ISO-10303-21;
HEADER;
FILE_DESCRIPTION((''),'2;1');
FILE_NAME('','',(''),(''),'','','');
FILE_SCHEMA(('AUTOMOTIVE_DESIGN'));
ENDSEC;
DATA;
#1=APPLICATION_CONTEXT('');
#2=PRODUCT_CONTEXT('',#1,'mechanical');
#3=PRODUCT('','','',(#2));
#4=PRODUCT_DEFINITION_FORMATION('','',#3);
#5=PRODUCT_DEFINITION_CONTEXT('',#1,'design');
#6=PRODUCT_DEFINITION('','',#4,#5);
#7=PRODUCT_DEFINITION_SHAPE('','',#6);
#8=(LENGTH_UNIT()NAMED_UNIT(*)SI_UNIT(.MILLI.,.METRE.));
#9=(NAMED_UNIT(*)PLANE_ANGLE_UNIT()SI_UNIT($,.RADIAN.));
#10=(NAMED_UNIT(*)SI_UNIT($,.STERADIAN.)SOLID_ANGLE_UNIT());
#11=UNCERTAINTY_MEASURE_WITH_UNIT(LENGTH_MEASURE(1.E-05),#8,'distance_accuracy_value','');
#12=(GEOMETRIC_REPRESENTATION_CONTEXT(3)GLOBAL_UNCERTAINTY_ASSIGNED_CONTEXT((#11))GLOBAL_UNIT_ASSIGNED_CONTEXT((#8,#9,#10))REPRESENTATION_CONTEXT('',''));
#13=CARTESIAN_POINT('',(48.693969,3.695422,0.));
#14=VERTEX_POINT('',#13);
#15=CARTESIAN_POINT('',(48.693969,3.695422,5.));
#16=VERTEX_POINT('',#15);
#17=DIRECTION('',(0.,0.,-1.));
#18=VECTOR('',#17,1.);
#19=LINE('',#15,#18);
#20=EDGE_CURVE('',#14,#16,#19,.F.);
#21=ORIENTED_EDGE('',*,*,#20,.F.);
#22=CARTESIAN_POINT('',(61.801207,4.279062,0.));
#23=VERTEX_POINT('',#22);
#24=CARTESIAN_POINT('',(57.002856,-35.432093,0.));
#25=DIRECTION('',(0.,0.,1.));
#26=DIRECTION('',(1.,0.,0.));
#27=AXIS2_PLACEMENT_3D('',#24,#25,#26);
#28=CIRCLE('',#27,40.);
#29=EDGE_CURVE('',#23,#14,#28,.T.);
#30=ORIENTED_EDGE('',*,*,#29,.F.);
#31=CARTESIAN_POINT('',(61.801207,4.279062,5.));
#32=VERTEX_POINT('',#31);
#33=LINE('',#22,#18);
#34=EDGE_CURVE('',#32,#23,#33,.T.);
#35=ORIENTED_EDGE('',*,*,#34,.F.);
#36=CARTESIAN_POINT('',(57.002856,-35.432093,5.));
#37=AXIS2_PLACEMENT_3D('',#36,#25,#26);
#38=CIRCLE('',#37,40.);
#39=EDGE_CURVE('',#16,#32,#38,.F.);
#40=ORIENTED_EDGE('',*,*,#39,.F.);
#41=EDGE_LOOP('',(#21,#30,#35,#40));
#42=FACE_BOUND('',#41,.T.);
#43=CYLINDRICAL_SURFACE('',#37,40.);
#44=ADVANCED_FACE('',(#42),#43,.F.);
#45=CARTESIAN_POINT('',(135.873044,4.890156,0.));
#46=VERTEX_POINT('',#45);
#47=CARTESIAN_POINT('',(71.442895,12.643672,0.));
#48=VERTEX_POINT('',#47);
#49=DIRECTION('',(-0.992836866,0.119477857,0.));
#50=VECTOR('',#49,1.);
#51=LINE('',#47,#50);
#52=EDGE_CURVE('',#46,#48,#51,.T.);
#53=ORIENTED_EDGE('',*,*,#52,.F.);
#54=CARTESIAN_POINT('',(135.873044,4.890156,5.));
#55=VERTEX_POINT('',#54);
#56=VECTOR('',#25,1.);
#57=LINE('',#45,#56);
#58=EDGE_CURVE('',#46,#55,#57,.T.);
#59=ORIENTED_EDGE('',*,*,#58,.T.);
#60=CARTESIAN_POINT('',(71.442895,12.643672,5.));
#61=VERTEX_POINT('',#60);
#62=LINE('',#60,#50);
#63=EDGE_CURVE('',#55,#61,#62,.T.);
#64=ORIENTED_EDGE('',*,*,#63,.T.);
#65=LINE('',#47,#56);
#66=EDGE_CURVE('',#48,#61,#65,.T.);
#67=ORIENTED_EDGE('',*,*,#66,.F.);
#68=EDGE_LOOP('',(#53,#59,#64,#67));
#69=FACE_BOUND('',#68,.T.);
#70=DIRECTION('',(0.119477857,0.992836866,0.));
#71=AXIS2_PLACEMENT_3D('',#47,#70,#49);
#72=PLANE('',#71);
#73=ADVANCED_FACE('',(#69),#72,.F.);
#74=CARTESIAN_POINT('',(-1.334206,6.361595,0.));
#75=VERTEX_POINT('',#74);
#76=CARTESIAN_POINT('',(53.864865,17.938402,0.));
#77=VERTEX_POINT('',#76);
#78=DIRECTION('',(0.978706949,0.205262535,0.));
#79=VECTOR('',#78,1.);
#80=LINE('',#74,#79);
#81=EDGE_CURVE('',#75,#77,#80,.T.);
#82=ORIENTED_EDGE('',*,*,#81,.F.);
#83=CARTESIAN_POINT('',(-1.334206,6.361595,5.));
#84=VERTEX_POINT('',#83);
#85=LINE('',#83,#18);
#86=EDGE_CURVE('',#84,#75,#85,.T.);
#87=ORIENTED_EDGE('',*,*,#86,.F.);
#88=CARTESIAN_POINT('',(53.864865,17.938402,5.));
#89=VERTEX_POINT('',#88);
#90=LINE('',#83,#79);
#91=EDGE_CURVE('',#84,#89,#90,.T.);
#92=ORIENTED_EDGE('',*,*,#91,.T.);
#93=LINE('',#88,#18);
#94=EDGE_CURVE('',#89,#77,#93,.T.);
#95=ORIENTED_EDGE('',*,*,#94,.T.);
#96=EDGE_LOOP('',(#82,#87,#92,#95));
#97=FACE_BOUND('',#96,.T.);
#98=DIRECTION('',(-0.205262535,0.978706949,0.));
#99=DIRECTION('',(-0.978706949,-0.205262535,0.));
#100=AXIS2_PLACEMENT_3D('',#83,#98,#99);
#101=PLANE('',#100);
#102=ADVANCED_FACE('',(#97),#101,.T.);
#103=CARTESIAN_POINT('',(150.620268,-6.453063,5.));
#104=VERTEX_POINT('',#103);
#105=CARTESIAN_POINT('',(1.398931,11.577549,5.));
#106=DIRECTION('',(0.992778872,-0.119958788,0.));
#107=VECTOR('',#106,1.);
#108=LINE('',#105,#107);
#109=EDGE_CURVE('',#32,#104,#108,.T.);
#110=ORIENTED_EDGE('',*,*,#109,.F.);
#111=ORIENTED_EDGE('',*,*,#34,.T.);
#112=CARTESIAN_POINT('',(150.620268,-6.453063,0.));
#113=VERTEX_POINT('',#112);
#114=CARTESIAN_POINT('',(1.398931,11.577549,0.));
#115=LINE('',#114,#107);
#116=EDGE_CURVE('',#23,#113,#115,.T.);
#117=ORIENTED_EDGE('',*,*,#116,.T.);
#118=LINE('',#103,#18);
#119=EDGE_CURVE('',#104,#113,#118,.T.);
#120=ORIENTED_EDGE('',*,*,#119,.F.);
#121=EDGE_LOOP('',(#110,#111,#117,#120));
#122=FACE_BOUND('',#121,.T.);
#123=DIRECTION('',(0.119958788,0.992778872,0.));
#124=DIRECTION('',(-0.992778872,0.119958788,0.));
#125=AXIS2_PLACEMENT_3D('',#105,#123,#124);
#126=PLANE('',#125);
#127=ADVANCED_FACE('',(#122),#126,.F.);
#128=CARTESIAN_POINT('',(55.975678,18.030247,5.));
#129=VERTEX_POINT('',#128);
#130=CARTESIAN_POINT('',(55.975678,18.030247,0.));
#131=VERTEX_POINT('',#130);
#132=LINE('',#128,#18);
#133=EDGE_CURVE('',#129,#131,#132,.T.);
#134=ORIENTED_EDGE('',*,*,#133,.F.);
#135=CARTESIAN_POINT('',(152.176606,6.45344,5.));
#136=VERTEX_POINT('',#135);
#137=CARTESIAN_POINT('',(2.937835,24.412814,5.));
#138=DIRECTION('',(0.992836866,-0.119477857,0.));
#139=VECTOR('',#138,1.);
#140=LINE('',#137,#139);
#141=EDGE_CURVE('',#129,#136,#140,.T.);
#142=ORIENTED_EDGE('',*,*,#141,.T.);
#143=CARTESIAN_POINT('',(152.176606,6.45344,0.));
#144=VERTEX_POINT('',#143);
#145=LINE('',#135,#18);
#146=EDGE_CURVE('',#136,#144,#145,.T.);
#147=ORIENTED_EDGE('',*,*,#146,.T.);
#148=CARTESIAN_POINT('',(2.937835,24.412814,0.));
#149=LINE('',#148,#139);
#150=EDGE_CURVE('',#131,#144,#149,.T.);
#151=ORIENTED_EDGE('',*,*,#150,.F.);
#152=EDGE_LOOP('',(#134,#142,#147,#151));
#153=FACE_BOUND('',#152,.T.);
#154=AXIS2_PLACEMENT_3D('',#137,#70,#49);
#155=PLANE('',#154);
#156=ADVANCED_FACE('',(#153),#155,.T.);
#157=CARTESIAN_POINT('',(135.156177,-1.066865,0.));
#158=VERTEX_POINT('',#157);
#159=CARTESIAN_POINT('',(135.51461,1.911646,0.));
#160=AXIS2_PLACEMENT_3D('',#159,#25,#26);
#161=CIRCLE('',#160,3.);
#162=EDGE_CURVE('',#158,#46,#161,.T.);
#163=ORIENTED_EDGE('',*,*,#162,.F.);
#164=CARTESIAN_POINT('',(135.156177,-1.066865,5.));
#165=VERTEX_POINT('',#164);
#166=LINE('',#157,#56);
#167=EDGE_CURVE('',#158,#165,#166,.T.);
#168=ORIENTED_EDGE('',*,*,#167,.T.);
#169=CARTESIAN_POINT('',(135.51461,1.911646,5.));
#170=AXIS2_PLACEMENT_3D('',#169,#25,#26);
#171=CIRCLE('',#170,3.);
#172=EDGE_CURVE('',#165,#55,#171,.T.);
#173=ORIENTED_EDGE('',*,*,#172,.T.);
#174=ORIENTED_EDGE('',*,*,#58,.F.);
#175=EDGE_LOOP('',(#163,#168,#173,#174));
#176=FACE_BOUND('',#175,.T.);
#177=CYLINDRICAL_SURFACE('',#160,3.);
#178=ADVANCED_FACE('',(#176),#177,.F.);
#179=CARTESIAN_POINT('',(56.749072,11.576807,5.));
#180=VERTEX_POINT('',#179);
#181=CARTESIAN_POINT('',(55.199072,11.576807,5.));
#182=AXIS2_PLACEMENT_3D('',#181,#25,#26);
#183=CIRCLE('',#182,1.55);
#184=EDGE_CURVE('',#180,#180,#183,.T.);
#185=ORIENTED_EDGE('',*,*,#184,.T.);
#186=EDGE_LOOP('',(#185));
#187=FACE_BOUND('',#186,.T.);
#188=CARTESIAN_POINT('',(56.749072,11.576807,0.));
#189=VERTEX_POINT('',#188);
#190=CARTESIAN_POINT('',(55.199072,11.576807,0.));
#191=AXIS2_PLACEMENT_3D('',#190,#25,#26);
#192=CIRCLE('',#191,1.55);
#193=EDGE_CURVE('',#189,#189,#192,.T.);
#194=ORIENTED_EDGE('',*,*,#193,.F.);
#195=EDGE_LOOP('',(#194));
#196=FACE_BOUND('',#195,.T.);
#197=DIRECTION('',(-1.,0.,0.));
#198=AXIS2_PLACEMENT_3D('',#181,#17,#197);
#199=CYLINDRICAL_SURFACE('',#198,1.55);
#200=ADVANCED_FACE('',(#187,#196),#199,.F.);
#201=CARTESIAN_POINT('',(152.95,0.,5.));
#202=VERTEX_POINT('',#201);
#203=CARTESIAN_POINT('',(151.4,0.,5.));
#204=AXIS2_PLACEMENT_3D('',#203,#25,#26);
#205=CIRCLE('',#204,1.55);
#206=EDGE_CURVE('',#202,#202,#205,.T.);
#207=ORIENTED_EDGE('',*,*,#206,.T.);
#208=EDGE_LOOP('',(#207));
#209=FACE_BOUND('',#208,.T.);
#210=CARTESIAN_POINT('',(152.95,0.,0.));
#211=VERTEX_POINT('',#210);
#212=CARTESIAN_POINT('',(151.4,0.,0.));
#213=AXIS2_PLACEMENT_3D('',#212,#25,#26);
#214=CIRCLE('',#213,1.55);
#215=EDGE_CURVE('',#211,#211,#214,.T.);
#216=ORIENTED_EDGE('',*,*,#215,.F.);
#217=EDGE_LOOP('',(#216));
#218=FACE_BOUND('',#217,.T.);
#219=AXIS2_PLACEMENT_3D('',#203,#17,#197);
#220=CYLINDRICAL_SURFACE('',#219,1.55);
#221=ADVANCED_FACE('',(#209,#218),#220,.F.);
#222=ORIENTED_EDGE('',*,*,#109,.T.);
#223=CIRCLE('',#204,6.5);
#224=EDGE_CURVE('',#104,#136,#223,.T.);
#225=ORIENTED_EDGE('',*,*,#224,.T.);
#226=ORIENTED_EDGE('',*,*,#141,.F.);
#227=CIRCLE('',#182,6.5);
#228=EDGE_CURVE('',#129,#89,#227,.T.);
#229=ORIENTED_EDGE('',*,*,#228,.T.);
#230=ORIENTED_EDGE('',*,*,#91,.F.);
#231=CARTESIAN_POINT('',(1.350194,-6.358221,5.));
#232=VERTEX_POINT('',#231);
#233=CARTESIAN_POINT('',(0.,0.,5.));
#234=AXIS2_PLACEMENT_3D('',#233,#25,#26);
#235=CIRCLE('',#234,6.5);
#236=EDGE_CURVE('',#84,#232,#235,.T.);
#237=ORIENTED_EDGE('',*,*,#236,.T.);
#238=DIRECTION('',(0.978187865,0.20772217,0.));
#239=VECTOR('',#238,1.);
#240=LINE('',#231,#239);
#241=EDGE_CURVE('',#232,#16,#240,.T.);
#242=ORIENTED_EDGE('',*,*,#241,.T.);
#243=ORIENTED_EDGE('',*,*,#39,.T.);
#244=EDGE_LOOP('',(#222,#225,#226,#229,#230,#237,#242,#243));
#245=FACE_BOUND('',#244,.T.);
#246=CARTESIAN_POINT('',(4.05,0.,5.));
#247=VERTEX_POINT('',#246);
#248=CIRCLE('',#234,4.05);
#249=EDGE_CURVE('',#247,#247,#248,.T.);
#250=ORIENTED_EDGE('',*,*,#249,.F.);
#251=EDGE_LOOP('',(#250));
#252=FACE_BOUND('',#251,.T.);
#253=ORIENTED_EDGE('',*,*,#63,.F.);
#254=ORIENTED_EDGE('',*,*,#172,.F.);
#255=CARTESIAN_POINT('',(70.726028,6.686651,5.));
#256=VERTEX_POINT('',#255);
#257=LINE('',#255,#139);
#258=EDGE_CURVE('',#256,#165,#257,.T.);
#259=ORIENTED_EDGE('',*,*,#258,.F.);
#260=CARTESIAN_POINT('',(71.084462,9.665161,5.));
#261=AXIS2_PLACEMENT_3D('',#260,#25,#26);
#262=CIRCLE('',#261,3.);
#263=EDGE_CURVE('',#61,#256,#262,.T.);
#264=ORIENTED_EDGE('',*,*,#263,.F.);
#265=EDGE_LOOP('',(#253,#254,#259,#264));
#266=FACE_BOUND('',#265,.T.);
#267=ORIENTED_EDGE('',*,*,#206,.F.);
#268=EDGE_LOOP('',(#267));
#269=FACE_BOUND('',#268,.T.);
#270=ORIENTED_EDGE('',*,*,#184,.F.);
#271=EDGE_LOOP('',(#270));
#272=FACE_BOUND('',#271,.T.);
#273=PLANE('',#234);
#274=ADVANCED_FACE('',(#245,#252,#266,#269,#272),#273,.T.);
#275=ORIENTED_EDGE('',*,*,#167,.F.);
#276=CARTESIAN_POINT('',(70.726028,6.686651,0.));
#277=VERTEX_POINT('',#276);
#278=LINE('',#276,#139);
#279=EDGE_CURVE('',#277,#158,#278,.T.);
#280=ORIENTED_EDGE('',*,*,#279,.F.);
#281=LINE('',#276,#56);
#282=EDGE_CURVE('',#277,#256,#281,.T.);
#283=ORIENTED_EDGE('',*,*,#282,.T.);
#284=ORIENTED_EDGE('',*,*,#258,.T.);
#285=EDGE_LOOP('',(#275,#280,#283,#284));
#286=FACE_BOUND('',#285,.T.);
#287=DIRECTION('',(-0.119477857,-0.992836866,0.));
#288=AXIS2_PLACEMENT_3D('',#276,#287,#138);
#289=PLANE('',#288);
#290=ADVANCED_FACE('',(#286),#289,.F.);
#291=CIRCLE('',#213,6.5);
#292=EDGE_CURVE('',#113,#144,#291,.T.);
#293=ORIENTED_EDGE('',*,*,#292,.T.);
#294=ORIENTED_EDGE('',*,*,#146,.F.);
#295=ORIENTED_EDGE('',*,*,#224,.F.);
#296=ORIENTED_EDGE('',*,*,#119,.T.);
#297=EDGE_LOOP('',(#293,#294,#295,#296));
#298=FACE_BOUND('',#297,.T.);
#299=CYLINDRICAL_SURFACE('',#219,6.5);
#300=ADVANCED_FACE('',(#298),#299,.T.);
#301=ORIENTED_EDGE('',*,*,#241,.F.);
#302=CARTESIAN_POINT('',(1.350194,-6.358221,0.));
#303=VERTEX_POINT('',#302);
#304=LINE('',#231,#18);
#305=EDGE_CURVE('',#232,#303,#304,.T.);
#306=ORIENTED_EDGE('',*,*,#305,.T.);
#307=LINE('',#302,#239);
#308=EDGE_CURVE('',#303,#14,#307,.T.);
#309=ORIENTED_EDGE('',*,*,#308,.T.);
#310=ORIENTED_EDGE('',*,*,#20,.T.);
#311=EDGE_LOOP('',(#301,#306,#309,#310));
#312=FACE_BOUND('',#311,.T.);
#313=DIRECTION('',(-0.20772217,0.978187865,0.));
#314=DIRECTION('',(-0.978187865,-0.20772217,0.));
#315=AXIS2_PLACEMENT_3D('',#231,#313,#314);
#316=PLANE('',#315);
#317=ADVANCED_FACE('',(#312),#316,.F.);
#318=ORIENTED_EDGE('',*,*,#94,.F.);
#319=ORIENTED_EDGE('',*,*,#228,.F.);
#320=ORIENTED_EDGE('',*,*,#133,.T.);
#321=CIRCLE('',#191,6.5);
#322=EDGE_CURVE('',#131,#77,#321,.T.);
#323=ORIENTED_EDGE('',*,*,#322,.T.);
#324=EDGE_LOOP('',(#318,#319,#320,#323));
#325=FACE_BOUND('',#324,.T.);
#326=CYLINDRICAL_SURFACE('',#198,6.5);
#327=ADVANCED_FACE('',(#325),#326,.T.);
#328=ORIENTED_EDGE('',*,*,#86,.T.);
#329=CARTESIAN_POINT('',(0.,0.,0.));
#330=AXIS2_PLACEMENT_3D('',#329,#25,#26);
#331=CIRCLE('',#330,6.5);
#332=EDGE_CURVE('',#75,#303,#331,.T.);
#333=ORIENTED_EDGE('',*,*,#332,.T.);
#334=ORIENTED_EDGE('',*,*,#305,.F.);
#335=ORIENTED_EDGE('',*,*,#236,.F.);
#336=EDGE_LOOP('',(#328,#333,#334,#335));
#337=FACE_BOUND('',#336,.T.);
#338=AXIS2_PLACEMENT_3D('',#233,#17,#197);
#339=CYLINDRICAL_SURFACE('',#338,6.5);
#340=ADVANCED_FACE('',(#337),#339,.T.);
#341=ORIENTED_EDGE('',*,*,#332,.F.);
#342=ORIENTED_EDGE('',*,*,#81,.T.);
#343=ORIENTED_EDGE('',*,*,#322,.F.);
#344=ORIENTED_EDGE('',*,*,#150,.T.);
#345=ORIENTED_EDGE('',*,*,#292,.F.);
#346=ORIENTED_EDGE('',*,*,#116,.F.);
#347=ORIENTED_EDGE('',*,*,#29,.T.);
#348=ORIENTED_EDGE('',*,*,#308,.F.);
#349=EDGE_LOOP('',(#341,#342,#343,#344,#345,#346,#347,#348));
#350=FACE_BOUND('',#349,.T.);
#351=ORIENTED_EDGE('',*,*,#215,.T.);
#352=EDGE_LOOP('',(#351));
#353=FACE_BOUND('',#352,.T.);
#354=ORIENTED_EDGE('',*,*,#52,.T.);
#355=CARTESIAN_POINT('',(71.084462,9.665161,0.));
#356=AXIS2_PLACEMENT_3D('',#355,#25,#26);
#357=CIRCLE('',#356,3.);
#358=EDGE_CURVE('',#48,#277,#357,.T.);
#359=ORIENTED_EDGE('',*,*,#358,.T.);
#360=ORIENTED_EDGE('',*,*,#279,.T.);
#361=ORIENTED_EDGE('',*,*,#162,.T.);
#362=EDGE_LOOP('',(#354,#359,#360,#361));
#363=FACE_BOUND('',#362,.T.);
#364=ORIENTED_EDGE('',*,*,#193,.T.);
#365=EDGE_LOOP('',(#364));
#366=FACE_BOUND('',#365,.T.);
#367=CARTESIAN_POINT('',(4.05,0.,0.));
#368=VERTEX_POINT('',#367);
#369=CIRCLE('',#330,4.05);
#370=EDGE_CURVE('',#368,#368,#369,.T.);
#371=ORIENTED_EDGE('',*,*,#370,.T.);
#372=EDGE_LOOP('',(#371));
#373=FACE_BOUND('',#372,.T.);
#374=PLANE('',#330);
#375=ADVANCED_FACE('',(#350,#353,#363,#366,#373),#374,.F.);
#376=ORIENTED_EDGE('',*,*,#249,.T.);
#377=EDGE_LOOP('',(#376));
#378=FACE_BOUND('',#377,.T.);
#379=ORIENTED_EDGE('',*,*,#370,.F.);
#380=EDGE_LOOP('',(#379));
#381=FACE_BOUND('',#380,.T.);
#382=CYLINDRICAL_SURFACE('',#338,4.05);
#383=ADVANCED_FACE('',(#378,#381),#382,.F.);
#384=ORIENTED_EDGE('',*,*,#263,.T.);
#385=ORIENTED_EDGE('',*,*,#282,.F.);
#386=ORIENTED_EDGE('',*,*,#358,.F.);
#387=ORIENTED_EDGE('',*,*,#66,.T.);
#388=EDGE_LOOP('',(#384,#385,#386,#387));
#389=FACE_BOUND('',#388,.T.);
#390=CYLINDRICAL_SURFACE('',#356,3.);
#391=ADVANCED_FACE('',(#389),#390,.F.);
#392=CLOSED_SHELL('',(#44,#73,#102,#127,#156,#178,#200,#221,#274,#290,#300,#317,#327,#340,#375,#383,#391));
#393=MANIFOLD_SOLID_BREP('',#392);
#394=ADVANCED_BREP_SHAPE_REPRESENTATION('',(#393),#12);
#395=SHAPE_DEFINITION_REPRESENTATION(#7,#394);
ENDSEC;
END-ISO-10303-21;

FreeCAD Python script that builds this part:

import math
import FreeCAD as App
import Part
import Sketcher
Q = App.Units.Quantity


def edges_at(feature, points):
    """Names of the edges that pass closest to the given points."""
    edges = feature.Shape.Edges
    near = lambda p: min(range(len(edges)), key=lambda i: edges[i].distToShape(Part.Vertex(*p))[0])
    return sorted({f"Edge{near(p) + 1}" for p in points})

doc = App.newDocument("Part")
body = doc.addObject("PartDesign::Body", "Body")

# Sketch on XY plane
sketch1 = body.newObject("Sketcher::SketchObject", "Sketch")
sketch1.AttachmentSupport = (doc.getObject("XY_Plane"), [""])
sketch1.MapMode = "FlatFace"
sketch1.addGeometry(Part.ArcOfCircle(Part.Circle(App.Vector(0, 0, 0), App.Vector(0, 0, 1), 6.5), math.radians(102), math.radians(282)), False)
sketch1.addGeometry(Part.LineSegment(App.Vector(1.4, -6.4, 0), App.Vector(55.2, 5.1, 0)), False)
sketch1.addGeometry(Part.LineSegment(App.Vector(55.2, 5.1, 0), App.Vector(150.6, -6.5, 0)), False)
sketch1.addGeometry(Part.ArcOfCircle(Part.Circle(App.Vector(151.4, 0, 0), App.Vector(0, 0, 1), 6.5), math.radians(-97), math.radians(83)), False)
sketch1.addGeometry(Part.LineSegment(App.Vector(152.2, 6.5, 0), App.Vector(56, 18, 0)), False)
sketch1.addGeometry(Part.ArcOfCircle(Part.Circle(App.Vector(55.2, 11.6, 0), App.Vector(0, 0, 1), 6.5), math.radians(83.14), math.radians(101.84)), False)
sketch1.addGeometry(Part.LineSegment(App.Vector(53.9, 17.9, 0), App.Vector(-1.3, 6.4, 0)), False)
sketch1.addGeometry(Part.Circle(App.Vector(0, 0, 0), App.Vector(0, 0, 1), 4), False)
sketch1.addGeometry(Part.Circle(App.Vector(55.2, 11.6, 0), App.Vector(0, 0, 1), 1.6), False)
sketch1.addGeometry(Part.Circle(App.Vector(151.4, 0, 0), App.Vector(0, 0, 1), 1.6), False)
sketch1.addConstraint(Sketcher.Constraint("Tangent", 0, 2, 1, 1))
sketch1.addConstraint(Sketcher.Constraint("Coincident", 1, 2, 2, 1))
sketch1.addConstraint(Sketcher.Constraint("Tangent", 2, 2, 3, 1))
sketch1.addConstraint(Sketcher.Constraint("Tangent", 3, 2, 4, 1))
sketch1.addConstraint(Sketcher.Constraint("Tangent", 4, 2, 5, 1))
sketch1.addConstraint(Sketcher.Constraint("Tangent", 5, 2, 6, 1))
sketch1.addConstraint(Sketcher.Constraint("Tangent", 6, 2, 0, 1))
sketch1.addConstraint(Sketcher.Constraint("Coincident", 0, 3, -1, 1))
sketch1.addConstraint(Sketcher.Constraint("Coincident", 7, 3, -1, 1))
sketch1.addConstraint(Sketcher.Constraint("Coincident", 8, 3, 5, 3))
sketch1.addConstraint(Sketcher.Constraint("Coincident", 9, 3, 3, 3))
sketch1.addConstraint(Sketcher.Constraint("Equal", 0, 3))
sketch1.addConstraint(Sketcher.Constraint("Equal", 3, 5))
sketch1.addConstraint(Sketcher.Constraint("Equal", 8, 9))
sketch1.addConstraint(Sketcher.Constraint("PointOnObject", 3, 3, -1))
sketch1.addConstraint(Sketcher.Constraint("Vertical", 8, 3, 1, 2))
sketch1.addConstraint(Sketcher.Constraint("Diameter", 7, Q("8.1 mm")))
sketch1.addConstraint(Sketcher.Constraint("Diameter", 8, Q("3.1 mm")))
sketch1.addConstraint(Sketcher.Constraint("Radius", 0, Q("6.5 mm")))
sketch1.addConstraint(Sketcher.Constraint("Distance", 6, Q("56.4 mm")))
sketch1.addConstraint(Sketcher.Constraint("DistanceX", -1, 1, 3, 3, Q("151.4 mm")))
sketch1.addConstraint(Sketcher.Constraint("DistanceY", 1, 2, 5, 3, Q("6.5 mm")))
sketch1.addConstraint(Sketcher.Constraint("Distance", 4, Q("96.895 mm")))
pad1 = body.newObject("PartDesign::Pad", "Pad")
pad1.Profile = sketch1
pad1.Length = 5
doc.recompute()

fillet = body.newObject("PartDesign::Fillet", "Fillet")
fillet.Base = (pad1, edges_at(pad1, [(55.199, 5.077, 2.5)]))
fillet.Radius = 40

# Sketch on XY plane
sketch2 = body.newObject("Sketcher::SketchObject", "Sketch001")
sketch2.AttachmentSupport = (doc.getObject("XY_Plane"), [""])
sketch2.MapMode = "FlatFace"
sketch2.AttachmentOffset = App.Placement(App.Vector(0, 0, 5), App.Rotation())
sketch2.addGeometry(Part.LineSegment(App.Vector(135.9, 4.9, 0), App.Vector(71.4, 12.6, 0)), False)
sketch2.addGeometry(Part.ArcOfCircle(Part.Circle(App.Vector(71.1, 9.7, 0), App.Vector(0, 0, 1), 3), math.radians(83), math.radians(263)), False)
sketch2.addGeometry(Part.LineSegment(App.Vector(70.7, 6.7, 0), App.Vector(135.2, -1.1, 0)), False)
sketch2.addGeometry(Part.ArcOfCircle(Part.Circle(App.Vector(135.5, 1.9, 0), App.Vector(0, 0, 1), 3), math.radians(-97), math.radians(83)), False)
sketch2.addConstraint(Sketcher.Constraint("Tangent", 0, 2, 1, 1))
sketch2.addConstraint(Sketcher.Constraint("Tangent", 1, 2, 2, 1))
sketch2.addConstraint(Sketcher.Constraint("Tangent", 2, 2, 3, 1))
sketch2.addConstraint(Sketcher.Constraint("Tangent", 3, 2, 0, 1))
sketch2.addConstraint(Sketcher.Constraint("Equal", 1, 3))
sketch2.addConstraint(Sketcher.Constraint("Radius", 1, Q("3 mm")))
sketch2.addConstraint(Sketcher.Constraint("Distance", 0, Q("64.895 mm")))
sketch2.addConstraint(Sketcher.Constraint("DistanceX", -1, 1, 1, 3, Q("71.084462 mm")))
sketch2.addConstraint(Sketcher.Constraint("DistanceY", -1, 1, 1, 3, Q("9.665161 mm")))
sketch2.addConstraint(Sketcher.Constraint("DistanceX", -1, 1, 3, 3, Q("135.51461 mm")))
pocket1 = body.newObject("PartDesign::Pocket", "Pocket")
pocket1.Profile = sketch2
pocket1.Type = "ThroughAll"

doc.recompute()
